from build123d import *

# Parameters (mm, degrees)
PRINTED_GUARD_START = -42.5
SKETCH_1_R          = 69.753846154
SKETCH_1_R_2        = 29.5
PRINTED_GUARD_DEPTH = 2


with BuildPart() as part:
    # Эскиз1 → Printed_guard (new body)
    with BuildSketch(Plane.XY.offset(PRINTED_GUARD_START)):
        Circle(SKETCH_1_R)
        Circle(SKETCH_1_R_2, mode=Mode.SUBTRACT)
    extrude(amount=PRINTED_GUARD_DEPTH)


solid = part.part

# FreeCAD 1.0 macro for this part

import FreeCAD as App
import Part
import Sketcher
Q = App.Units.Quantity

doc = App.newDocument("Part")
body = doc.addObject("PartDesign::Body", "Body")

# Sketch on XY plane
sketch1 = body.newObject("Sketcher::SketchObject", "Sketch")
sketch1.AttachmentSupport = (doc.getObject("XY_Plane"), [""])
sketch1.MapMode = "FlatFace"
sketch1.AttachmentOffset = App.Placement(App.Vector(0, 0, -42.5), App.Rotation())
sketch1.addGeometry([
    Part.Circle(App.Vector(0, 0, 0), App.Vector(0, 0, 1), 69.753846),
    Part.Circle(App.Vector(0, 0, 0), App.Vector(0, 0, 1), 29.5),
], False)
sketch1.addConstraint([
    Sketcher.Constraint("Coincident", 0, 3, -1, 1),
    Sketcher.Constraint("Coincident", 1, 3, -1, 1),
    Sketcher.Constraint("Diameter", 1, Q("59 mm")),
    Sketcher.Constraint("Diameter", 0, Q("139.507692 mm")),
])
pad1 = body.newObject("PartDesign::Pad", "Pad")
pad1.Profile = sketch1
pad1.Length = 2

doc.recompute()
